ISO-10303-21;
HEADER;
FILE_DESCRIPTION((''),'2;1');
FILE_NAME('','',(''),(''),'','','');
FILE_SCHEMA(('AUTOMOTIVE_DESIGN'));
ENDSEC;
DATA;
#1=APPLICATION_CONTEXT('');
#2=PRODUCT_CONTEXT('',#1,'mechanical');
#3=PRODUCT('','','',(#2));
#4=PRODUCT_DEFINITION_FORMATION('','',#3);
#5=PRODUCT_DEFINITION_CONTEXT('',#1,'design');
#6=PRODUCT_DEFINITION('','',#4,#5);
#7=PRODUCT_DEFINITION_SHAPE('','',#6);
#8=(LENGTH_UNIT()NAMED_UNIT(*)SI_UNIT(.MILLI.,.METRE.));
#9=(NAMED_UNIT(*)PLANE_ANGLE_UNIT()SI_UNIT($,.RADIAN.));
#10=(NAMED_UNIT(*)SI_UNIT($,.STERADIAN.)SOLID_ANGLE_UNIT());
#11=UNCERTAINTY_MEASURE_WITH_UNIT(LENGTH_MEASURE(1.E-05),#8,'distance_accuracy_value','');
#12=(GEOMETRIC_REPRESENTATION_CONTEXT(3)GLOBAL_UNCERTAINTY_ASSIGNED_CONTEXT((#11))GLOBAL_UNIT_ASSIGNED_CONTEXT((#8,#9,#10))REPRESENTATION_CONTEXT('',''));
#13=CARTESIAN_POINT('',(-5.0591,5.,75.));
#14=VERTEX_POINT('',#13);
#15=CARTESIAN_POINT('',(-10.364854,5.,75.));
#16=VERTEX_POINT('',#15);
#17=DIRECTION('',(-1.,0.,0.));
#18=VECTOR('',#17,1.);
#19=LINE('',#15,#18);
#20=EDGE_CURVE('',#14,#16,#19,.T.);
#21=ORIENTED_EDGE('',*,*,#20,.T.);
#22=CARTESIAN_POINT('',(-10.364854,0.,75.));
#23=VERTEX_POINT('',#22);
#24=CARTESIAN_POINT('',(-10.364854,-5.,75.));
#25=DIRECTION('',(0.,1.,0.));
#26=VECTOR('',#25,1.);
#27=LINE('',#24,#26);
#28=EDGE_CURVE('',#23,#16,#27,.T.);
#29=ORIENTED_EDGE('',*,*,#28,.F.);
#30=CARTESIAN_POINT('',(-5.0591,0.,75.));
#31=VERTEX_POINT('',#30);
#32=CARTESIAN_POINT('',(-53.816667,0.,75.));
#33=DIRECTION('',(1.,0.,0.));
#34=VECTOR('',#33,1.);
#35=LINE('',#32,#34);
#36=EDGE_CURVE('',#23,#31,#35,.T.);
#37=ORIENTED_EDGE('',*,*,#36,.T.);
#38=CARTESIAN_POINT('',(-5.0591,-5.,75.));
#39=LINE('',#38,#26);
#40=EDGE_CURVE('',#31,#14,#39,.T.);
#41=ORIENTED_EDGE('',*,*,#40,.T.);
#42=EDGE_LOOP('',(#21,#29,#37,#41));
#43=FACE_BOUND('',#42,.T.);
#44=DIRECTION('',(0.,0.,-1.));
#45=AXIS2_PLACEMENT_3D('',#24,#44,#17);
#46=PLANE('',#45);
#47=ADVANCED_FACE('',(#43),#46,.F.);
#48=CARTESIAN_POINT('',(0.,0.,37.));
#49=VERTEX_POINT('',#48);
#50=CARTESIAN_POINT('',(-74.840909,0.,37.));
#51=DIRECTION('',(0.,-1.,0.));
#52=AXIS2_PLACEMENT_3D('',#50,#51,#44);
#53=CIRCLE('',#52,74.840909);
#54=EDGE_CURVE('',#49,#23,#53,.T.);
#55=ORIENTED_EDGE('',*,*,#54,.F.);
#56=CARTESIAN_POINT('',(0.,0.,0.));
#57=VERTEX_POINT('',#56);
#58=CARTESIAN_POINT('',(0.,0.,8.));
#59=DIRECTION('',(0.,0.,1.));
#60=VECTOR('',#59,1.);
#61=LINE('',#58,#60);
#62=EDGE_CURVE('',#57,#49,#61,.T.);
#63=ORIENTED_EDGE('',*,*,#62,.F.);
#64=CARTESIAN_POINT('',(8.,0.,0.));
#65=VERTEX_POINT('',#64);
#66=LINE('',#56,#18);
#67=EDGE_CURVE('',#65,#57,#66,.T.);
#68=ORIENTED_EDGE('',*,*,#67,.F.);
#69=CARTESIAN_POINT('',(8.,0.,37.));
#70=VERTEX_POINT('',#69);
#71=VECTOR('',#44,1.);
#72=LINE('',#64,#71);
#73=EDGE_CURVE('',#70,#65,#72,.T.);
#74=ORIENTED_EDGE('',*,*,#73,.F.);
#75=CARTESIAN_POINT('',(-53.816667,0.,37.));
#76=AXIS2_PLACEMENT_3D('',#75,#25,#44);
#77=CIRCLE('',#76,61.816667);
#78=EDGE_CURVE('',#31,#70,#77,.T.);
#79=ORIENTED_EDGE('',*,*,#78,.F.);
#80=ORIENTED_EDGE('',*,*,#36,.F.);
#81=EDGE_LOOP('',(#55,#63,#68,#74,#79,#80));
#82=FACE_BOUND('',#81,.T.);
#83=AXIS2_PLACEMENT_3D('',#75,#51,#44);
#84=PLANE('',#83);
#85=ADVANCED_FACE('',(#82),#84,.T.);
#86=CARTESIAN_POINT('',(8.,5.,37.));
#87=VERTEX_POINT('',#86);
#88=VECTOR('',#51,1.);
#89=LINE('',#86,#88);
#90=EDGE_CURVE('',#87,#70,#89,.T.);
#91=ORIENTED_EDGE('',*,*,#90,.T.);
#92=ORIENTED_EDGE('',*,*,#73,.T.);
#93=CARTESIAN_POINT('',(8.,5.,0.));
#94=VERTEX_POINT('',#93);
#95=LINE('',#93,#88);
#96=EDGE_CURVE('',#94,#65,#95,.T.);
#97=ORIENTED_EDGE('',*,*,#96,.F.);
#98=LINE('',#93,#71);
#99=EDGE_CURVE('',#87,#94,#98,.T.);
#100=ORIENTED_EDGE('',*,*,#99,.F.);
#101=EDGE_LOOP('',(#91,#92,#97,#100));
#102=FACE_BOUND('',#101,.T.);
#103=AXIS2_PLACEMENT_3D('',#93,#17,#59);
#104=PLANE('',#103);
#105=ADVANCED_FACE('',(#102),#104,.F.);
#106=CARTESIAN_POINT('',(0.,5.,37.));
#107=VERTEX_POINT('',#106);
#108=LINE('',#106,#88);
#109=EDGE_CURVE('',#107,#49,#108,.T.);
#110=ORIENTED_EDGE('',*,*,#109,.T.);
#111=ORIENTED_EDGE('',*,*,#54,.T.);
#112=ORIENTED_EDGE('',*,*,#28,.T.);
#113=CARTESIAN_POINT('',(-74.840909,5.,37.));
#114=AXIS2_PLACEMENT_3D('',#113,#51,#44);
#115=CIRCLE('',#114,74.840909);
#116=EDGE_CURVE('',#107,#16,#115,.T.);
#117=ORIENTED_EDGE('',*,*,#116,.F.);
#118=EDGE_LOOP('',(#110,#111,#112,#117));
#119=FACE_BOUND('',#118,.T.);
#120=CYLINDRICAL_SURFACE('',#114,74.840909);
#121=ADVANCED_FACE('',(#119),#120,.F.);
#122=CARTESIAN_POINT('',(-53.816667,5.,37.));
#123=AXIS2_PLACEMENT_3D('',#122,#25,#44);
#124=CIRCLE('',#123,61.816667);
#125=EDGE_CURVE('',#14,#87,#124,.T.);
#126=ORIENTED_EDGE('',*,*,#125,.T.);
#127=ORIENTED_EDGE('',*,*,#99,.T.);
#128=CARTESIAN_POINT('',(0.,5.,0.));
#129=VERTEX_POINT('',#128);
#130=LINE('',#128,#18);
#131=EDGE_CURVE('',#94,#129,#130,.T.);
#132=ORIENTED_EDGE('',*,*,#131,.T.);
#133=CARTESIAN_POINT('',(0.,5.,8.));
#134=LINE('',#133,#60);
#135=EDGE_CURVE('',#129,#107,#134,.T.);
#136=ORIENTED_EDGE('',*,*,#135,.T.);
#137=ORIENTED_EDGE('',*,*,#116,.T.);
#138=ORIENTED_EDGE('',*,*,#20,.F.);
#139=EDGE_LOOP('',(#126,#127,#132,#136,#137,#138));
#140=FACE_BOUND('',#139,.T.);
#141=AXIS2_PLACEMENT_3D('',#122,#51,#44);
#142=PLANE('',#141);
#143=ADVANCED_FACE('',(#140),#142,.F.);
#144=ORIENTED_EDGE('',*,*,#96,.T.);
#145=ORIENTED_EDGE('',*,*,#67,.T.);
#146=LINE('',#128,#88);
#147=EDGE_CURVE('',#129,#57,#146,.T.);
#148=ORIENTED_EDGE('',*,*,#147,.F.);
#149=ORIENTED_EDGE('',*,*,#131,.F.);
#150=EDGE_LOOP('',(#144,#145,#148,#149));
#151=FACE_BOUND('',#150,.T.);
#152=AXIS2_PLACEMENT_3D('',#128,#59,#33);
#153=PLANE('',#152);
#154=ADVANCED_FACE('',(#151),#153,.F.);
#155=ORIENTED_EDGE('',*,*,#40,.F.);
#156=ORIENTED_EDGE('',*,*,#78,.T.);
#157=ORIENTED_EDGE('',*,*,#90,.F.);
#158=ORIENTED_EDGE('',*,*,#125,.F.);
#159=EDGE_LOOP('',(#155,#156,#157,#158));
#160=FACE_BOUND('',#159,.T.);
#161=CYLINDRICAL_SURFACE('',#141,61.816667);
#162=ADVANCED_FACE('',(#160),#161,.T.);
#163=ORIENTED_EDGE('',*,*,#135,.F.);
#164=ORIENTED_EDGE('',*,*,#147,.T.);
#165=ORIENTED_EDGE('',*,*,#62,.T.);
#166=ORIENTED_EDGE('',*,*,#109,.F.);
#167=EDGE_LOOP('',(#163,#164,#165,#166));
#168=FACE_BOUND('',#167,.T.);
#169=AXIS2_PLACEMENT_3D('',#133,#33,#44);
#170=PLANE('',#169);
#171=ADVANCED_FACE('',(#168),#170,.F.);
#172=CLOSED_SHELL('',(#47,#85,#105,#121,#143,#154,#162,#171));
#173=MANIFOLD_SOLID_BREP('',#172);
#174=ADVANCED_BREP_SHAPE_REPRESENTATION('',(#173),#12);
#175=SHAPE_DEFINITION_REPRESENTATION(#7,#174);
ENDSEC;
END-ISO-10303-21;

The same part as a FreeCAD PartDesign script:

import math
import FreeCAD as App
import Part
import Sketcher
from FreeCAD import Vector

doc = App.newDocument("Part")
params = doc.addObject("Spreadsheet::Sheet", "Params")
for row, (alias, value) in enumerate([
    ("sketch1_width", "8 mm"),
    ("sketch1_height", "37 mm"),
    ("pad1_length", "5 mm"),
    ("pocket1_length", "10 mm"),
], start=1):
    params.set(f"A{row}", alias)
    params.set(f"B{row}", "=" + value)
    params.setAlias(f"B{row}", alias)

body = doc.addObject("PartDesign::Body", "Body")

# Sketch on XZ plane
sketch1 = body.newObject("Sketcher::SketchObject", "Sketch")
sketch1.AttachmentSupport = (doc.getObject("XZ_Plane"), [""])
sketch1.MapMode = "FlatFace"
sketch1.addGeometry(Part.LineSegment(Vector(8, 0, 0), Vector(0, 0, 0)), False)
sketch1.addGeometry(Part.LineSegment(Vector(0, 0, 0), Vector(0, 37, 0)), False)
sketch1.addGeometry(Part.ArcOfCircle(Part.Circle(Vector(-75, 37, 0), Vector(0, 0, 1), 75), math.radians(0), math.radians(45)), False)
sketch1.addGeometry(Part.ArcOfCircle(Part.Circle(Vector(-54, 37, 0), Vector(0, 0, 1), 62), math.radians(0), math.radians(59)), False)
sketch1.addGeometry(Part.LineSegment(Vector(8, 37, 0), Vector(8, 0, 0)), False)
sketch1.addConstraint(Sketcher.Constraint("Coincident", 0, 2, 1, 1))
sketch1.addConstraint(Sketcher.Constraint("Tangent", 1, 2, 2, 1))
sketch1.addConstraint(Sketcher.Constraint("Coincident", 2, 2, 3, 2))
sketch1.addConstraint(Sketcher.Constraint("Tangent", 3, 1, 4, 1))
sketch1.addConstraint(Sketcher.Constraint("Coincident", 4, 2, 0, 1))
sketch1.addConstraint(Sketcher.Constraint("Horizontal", 0))
sketch1.addConstraint(Sketcher.Constraint("Vertical", 1))
sketch1.addConstraint(Sketcher.Constraint("Vertical", 4))
sketch1.addConstraint(Sketcher.Constraint("Coincident", 0, 2, -1, 1))
sketch1.addConstraint(Sketcher.Constraint("Horizontal", 2, 3, 3, 3))
sketch1.addConstraint(Sketcher.Constraint("DistanceX", 0, 2, 0, 1, 8.0))
sketch1.addConstraint(Sketcher.Constraint("DistanceY", 1, 1, 1, 2, 37.0))
sketch1.addConstraint(Sketcher.Constraint("DistanceX", 2, 2, -1, 1, 22.0))
sketch1.addConstraint(Sketcher.Constraint("DistanceY", -1, 1, 2, 2, 90.0))
sketch1.setExpression("Constraints[10]", "Params.sketch1_width")
sketch1.setExpression("Constraints[11]", "Params.sketch1_height")
pad1 = body.newObject("PartDesign::Pad", "Pad")
pad1.Profile = sketch1
pad1.setExpression("Length", "Params.pad1_length")
pad1.Reversed = True

# Sketch on XZ plane
sketch2 = body.newObject("Sketcher::SketchObject", "Sketch001")
sketch2.AttachmentSupport = (doc.getObject("XZ_Plane"), [""])
sketch2.MapMode = "FlatFace"
sketch2.AttachmentOffset = App.Placement(Vector(0, 0, 5), App.Rotation())
sketch2.addGeometry(Part.LineSegment(Vector(-5, 75, 0), Vector(-10, 75, 0)), False)
sketch2.addGeometry(Part.ArcOfCircle(Part.Circle(Vector(-75, 37, 0), Vector(0, 0, 1), 75), math.radians(30.51), math.radians(45.09)), False)
sketch2.addGeometry(Part.ArcOfCircle(Part.Circle(Vector(-54, 37, 0), Vector(0, 0, 1), 62), math.radians(38), math.radians(59)), False)
sketch2.addConstraint(Sketcher.Constraint("Coincident", 0, 2, 1, 1))
sketch2.addConstraint(Sketcher.Constraint("Coincident", 1, 2, 2, 2))
sketch2.addConstraint(Sketcher.Constraint("Coincident", 2, 1, 0, 1))
sketch2.addConstraint(Sketcher.Constraint("Horizontal", 0))
sketch2.addConstraint(Sketcher.Constraint("Horizontal", 1, 3, 2, 3))
sketch2.addConstraint(Sketcher.Constraint("DistanceY", -1, 1, 1, 3, 37.0))
sketch2.addConstraint(Sketcher.Constraint("DistanceY", -1, 1, 0, 2, 75.0))
sketch2.addConstraint(Sketcher.Constraint("DistanceX", 1, 2, -1, 1, 22.0))
sketch2.addConstraint(Sketcher.Constraint("DistanceY", -1, 1, 1, 2, 90.0))
sketch2.addConstraint(Sketcher.Constraint("Radius", 1, 74.840909))
sketch2.addConstraint(Sketcher.Constraint("Radius", 2, 61.816667))
pocket1 = body.newObject("PartDesign::Pocket", "Pocket")
pocket1.Profile = sketch2
pocket1.setExpression("Length", "Params.pocket1_length")

doc.recompute()
